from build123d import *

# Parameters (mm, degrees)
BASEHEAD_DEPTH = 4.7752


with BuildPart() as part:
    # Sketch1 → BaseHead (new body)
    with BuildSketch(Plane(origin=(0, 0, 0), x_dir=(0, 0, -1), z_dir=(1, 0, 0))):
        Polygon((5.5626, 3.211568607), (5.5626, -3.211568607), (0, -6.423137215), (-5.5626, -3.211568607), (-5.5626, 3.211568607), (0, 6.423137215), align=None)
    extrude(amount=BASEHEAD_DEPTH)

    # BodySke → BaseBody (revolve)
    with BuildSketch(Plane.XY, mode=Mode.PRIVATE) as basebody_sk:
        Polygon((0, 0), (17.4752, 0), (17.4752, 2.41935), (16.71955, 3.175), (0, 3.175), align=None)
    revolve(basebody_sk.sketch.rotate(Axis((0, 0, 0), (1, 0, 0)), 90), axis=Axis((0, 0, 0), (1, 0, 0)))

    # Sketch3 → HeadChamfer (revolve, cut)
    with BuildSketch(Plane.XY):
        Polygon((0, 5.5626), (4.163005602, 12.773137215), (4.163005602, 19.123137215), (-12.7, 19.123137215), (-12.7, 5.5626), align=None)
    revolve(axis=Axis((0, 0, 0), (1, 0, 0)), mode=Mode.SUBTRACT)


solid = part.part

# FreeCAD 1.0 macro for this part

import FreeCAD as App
import Part
import Sketcher
Q = App.Units.Quantity

doc = App.newDocument("Part")
params = doc.addObject("Spreadsheet::Sheet", "Params")
for row, (alias, value) in enumerate([
    ("pad1_length", "0.188 in"),
    ("sketch2_width", "0.688 in"),
    ("sketch2_height", "0.125 in"),
    ("revolution_angle", "360 deg"),
    ("sketch3_width", "0.5 in"),
    ("sketch3_height", "0.25 in"),
    ("groove_angle", "360 deg"),
], start=1):
    params.set(f"A{row}", alias)
    params.set(f"B{row}", "=" + value)
    params.setAlias(f"B{row}", alias)

body = doc.addObject("PartDesign::Body", "Body")

# Sketch on YZ plane
sketch1 = doc.addObject("Sketcher::SketchObject", "Sketch")
body.addObject(sketch1)
sketch1.AttachmentSupport = (doc.YZ_Plane, [""])
sketch1.MapMode = "FlatFace"
sketch1.addGeometry([
    Part.LineSegment(App.Vector(-3.211569, -5.5626, 0), App.Vector(3.211569, -5.5626, 0)),  # 0
    Part.LineSegment(App.Vector(3.211569, -5.5626, 0), App.Vector(6.423137, 0, 0)),  # 1
    Part.LineSegment(App.Vector(6.423137, 0, 0), App.Vector(3.211569, 5.5626, 0)),  # 2
    Part.LineSegment(App.Vector(3.211569, 5.5626, 0), App.Vector(-3.211569, 5.5626, 0)),  # 3
    Part.LineSegment(App.Vector(-3.211569, 5.5626, 0), App.Vector(-6.423137, 0, 0)),  # 4
    Part.LineSegment(App.Vector(-6.423137, 0, 0), App.Vector(-3.211569, -5.5626, 0)),  # 5
], False)
sketch1.addConstraint([
    Sketcher.Constraint("Coincident", 0, 2, 1, 1),
    Sketcher.Constraint("Coincident", 1, 2, 2, 1),
    Sketcher.Constraint("Coincident", 2, 2, 3, 1),
    Sketcher.Constraint("Coincident", 3, 2, 4, 1),
    Sketcher.Constraint("Coincident", 4, 2, 5, 1),
    Sketcher.Constraint("Coincident", 5, 2, 0, 1),
    Sketcher.Constraint("Horizontal", 0),
    Sketcher.Constraint("Horizontal", 3),
    Sketcher.Constraint("Symmetric", 0, 2, 3, 2, -1, 1),
    Sketcher.Constraint("Symmetric", 1, 2, 4, 2, -1, 1),
    Sketcher.Constraint("PointOnObject", 1, 2, -1),
    Sketcher.Constraint("Parallel", 2, 5),
    Sketcher.Constraint("Vertical", 0, 2, 2, 2),
    Sketcher.Constraint("Angle", 1, Q("60 deg")),
    Sketcher.Constraint("DistanceY", 0, 2, -1, 1, Q("0.219 in")),
    Sketcher.Constraint("DistanceX", 0, 1, 0, 2, Q("6.423137 mm")),
])
pad1 = doc.addObject("PartDesign::Pad", "Pad")
body.addObject(pad1)
pad1.Profile = sketch1
pad1.setExpression("Length", "Params.pad1_length")

# Sketch on XY plane
sketch2 = doc.addObject("Sketcher::SketchObject", "Sketch001")
body.addObject(sketch2)
sketch2.AttachmentSupport = (doc.XY_Plane, [""])
sketch2.MapMode = "FlatFace"
sketch2.addGeometry([
    Part.LineSegment(App.Vector(0, 0, 0), App.Vector(17.4752, 0, 0)),  # 0
    Part.LineSegment(App.Vector(17.4752, 0, 0), App.Vector(17.4752, 2.41935, 0)),  # 1
    Part.LineSegment(App.Vector(17.4752, 2.41935, 0), App.Vector(16.71955, 3.175, 0)),  # 2
    Part.LineSegment(App.Vector(16.71955, 3.175, 0), App.Vector(0, 3.175, 0)),  # 3
    Part.LineSegment(App.Vector(0, 3.175, 0), App.Vector(0, 0, 0)),  # 4
], False)
sketch2.addConstraint([
    Sketcher.Constraint("Coincident", 0, 2, 1, 1),
    Sketcher.Constraint("Coincident", 1, 2, 2, 1),
    Sketcher.Constraint("Coincident", 2, 2, 3, 1),
    Sketcher.Constraint("Coincident", 3, 2, 4, 1),
    Sketcher.Constraint("Coincident", 4, 2, 0, 1),
    Sketcher.Constraint("Horizontal", 0),
    Sketcher.Constraint("Vertical", 1),
    Sketcher.Constraint("Horizontal", 3),
    Sketcher.Constraint("Vertical", 4),
    Sketcher.Constraint("Coincident", 4, 2, -1, 1),
    Sketcher.Constraint("Angle", 2, Q("135 deg")),
    Sketcher.Constraint("DistanceX", 0, 1, 0, 2, Q("0.688 in")),
    Sketcher.Constraint("DistanceY", 4, 2, 4, 1, Q("0.125 in")),
    Sketcher.Constraint("DistanceX", 3, 2, 3, 1, Q("16.71955 mm")),
])
sketch2.setExpression("Constraints[11]", "Params.sketch2_width")
sketch2.setExpression("Constraints[12]", "Params.sketch2_height")
revolution = doc.addObject("PartDesign::Revolution", "Revolution")
body.addObject(revolution)
revolution.Profile = sketch2
revolution.ReferenceAxis = (sketch2, ["H_Axis"])
revolution.setExpression("Angle", "Params.revolution_angle")

# Sketch on XY plane
sketch3 = doc.addObject("Sketcher::SketchObject", "Sketch002")
body.addObject(sketch3)
sketch3.AttachmentSupport = (doc.XY_Plane, [""])
sketch3.MapMode = "FlatFace"
sketch3.addGeometry([
    Part.LineSegment(App.Vector(0, 5.5626, 0), App.Vector(4.163006, 12.773137, 0)),  # 0
    Part.LineSegment(App.Vector(4.163006, 12.773137, 0), App.Vector(4.163006, 19.123137, 0)),  # 1
    Part.LineSegment(App.Vector(4.163006, 19.123137, 0), App.Vector(-12.7, 19.123137, 0)),  # 2
    Part.LineSegment(App.Vector(-12.7, 19.123137, 0), App.Vector(-12.7, 5.5626, 0)),  # 3
    Part.LineSegment(App.Vector(-12.7, 5.5626, 0), App.Vector(0, 5.5626, 0)),  # 4
], False)
sketch3.addConstraint([
    Sketcher.Constraint("Coincident", 0, 2, 1, 1),
    Sketcher.Constraint("Coincident", 1, 2, 2, 1),
    Sketcher.Constraint("Coincident", 2, 2, 3, 1),
    Sketcher.Constraint("Coincident", 3, 2, 4, 1),
    Sketcher.Constraint("Coincident", 4, 2, 0, 1),
    Sketcher.Constraint("Vertical", 1),
    Sketcher.Constraint("Horizontal", 2),
    Sketcher.Constraint("Vertical", 3),
    Sketcher.Constraint("Horizontal", 4),
    Sketcher.Constraint("PointOnObject", 4, 2, -2),
    Sketcher.Constraint("DistanceX", 4, 1, 4, 2, Q("0.5 in")),
    Sketcher.Constraint("Angle", 0, Q("60 deg")),
    Sketcher.Constraint("DistanceY", 1, 1, 1, 2, Q("0.25 in")),
    Sketcher.Constraint("DistanceY", -1, 1, 3, 2, Q("0.219 in")),
    Sketcher.Constraint("Distance", 0, Q("8.326011 mm")),
])
sketch3.setExpression("Constraints[10]", "Params.sketch3_width")
sketch3.setExpression("Constraints[12]", "Params.sketch3_height")
groove = doc.addObject("PartDesign::Groove", "Groove")
body.addObject(groove)
groove.Profile = sketch3
groove.ReferenceAxis = (sketch3, ["H_Axis"])
groove.setExpression("Angle", "Params.groove_angle")

doc.recompute()
